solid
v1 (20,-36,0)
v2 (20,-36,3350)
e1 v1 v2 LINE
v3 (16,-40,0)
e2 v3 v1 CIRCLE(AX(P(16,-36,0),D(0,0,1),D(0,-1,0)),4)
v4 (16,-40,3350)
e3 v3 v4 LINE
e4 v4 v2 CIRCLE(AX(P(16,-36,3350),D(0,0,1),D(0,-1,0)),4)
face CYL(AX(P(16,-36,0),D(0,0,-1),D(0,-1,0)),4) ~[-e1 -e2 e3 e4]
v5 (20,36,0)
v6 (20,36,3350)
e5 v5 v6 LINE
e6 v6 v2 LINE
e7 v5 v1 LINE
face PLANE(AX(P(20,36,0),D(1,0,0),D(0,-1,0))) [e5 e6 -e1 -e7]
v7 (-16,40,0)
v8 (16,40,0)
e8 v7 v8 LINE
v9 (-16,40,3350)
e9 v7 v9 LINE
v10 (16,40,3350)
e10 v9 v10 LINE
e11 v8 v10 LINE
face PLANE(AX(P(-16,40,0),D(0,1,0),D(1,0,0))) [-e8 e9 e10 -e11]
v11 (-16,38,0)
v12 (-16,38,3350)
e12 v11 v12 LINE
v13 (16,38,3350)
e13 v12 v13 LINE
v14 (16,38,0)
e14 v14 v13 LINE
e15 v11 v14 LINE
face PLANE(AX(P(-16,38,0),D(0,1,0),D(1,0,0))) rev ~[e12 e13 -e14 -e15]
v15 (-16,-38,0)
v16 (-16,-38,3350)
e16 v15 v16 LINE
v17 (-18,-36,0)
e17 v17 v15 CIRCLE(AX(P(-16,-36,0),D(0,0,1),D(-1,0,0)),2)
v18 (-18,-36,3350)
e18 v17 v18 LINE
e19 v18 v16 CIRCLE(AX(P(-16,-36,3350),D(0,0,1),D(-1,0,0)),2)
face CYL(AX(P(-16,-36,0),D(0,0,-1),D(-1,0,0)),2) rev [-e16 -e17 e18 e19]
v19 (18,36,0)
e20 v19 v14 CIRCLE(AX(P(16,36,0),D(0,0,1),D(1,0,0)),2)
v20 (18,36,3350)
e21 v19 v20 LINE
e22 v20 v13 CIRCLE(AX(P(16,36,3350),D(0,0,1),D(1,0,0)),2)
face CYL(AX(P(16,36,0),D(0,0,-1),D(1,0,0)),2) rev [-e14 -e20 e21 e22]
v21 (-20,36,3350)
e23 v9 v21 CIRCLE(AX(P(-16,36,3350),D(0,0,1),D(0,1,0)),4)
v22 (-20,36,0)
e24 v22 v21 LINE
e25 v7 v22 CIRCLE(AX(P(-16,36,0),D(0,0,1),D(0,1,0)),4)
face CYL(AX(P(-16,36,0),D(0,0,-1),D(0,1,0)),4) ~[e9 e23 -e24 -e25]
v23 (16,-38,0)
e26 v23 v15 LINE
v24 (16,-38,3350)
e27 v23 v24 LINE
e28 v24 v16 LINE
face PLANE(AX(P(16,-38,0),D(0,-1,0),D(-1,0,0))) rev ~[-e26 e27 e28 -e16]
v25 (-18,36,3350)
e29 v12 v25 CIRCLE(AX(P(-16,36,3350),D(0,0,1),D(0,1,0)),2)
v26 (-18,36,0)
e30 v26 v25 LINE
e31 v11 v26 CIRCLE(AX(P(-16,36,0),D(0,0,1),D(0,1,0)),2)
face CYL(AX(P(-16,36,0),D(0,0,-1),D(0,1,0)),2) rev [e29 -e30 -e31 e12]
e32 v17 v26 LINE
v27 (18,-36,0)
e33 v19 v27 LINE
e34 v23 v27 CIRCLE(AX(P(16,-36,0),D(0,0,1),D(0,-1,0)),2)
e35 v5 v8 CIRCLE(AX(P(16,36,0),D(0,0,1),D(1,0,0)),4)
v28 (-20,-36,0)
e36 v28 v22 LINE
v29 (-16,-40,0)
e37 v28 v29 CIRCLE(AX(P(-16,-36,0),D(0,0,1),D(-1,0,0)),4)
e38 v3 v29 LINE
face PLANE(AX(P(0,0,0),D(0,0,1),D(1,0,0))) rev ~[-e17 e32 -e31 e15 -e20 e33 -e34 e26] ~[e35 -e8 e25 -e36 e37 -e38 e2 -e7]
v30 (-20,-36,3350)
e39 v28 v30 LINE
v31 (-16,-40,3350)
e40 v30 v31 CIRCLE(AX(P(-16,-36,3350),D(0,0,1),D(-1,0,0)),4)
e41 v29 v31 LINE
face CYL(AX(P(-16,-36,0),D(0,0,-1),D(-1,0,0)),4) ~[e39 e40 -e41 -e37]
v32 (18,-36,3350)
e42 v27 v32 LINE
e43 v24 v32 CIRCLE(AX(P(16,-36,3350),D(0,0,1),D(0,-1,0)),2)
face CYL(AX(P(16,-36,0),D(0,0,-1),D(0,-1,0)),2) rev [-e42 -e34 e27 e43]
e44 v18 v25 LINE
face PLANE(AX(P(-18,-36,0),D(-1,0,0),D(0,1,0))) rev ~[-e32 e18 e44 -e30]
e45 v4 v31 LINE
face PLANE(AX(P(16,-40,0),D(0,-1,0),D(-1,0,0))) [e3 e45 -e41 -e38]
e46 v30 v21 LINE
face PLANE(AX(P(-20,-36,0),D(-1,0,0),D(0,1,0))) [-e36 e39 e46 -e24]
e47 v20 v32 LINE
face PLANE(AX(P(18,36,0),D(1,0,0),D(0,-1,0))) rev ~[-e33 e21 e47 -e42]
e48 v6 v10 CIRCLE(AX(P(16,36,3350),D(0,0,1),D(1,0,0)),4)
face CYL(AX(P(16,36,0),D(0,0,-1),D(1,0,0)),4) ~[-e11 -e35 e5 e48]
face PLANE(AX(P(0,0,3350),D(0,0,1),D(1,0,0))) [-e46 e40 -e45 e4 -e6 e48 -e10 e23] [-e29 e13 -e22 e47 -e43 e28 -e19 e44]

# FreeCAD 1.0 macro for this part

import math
import FreeCAD as App
import Part
import Sketcher
from FreeCAD import Vector

doc = App.newDocument("Part")
params = doc.addObject("Spreadsheet::Sheet", "Params")
for row, (alias, value) in enumerate([
    ("sketch1_radius", "4 mm"),
    ("sketch1_radius2", "2 mm"),
    ("pad1_length", "3350 mm"),
], start=1):
    params.set(f"A{row}", alias)
    params.set(f"B{row}", "=" + value)
    params.setAlias(f"B{row}", alias)

body = doc.addObject("PartDesign::Body", "Body")

# Sketch on XY plane
sketch1 = body.newObject("Sketcher::SketchObject", "Sketch")
sketch1.AttachmentSupport = (doc.getObject("XY_Plane"), [""])
sketch1.MapMode = "FlatFace"
sketch1.addGeometry(Part.LineSegment(Vector(-20, 36, 0), Vector(-20, -36, 0)), False)
sketch1.addGeometry(Part.ArcOfCircle(Part.Circle(Vector(-16, -36, 0), Vector(0, 0, 1), 4), math.radians(180), math.radians(270)), False)
sketch1.addGeometry(Part.LineSegment(Vector(-16, -40, 0), Vector(16, -40, 0)), False)
sketch1.addGeometry(Part.ArcOfCircle(Part.Circle(Vector(16, -36, 0), Vector(0, 0, 1), 4), math.radians(-90), math.radians(0)), False)
sketch1.addGeometry(Part.LineSegment(Vector(20, -36, 0), Vector(20, 36, 0)), False)
sketch1.addGeometry(Part.ArcOfCircle(Part.Circle(Vector(16, 36, 0), Vector(0, 0, 1), 4), math.radians(0), math.radians(90)), False)
sketch1.addGeometry(Part.LineSegment(Vector(16, 40, 0), Vector(-16, 40, 0)), False)
sketch1.addGeometry(Part.ArcOfCircle(Part.Circle(Vector(-16, 36, 0), Vector(0, 0, 1), 4), math.radians(90), math.radians(180)), False)
sketch1.addGeometry(Part.ArcOfCircle(Part.Circle(Vector(-16, 36, 0), Vector(0, 0, 1), 2), math.radians(90), math.radians(180)), False)
sketch1.addGeometry(Part.LineSegment(Vector(-16, 38, 0), Vector(16, 38, 0)), False)
sketch1.addGeometry(Part.ArcOfCircle(Part.Circle(Vector(16, 36, 0), Vector(0, 0, 1), 2), math.radians(0), math.radians(90)), False)
sketch1.addGeometry(Part.LineSegment(Vector(18, 36, 0), Vector(18, -36, 0)), False)
sketch1.addGeometry(Part.ArcOfCircle(Part.Circle(Vector(16, -36, 0), Vector(0, 0, 1), 2), math.radians(-90), math.radians(0)), False)
sketch1.addGeometry(Part.LineSegment(Vector(16, -38, 0), Vector(-16, -38, 0)), False)
sketch1.addGeometry(Part.ArcOfCircle(Part.Circle(Vector(-16, -36, 0), Vector(0, 0, 1), 2), math.radians(180), math.radians(270)), False)
sketch1.addGeometry(Part.LineSegment(Vector(-18, -36, 0), Vector(-18, 36, 0)), False)
sketch1.addConstraint(Sketcher.Constraint("Tangent", 0, 2, 1, 1))
sketch1.addConstraint(Sketcher.Constraint("Tangent", 1, 2, 2, 1))
sketch1.addConstraint(Sketcher.Constraint("Tangent", 2, 2, 3, 1))
sketch1.addConstraint(Sketcher.Constraint("Tangent", 3, 2, 4, 1))
sketch1.addConstraint(Sketcher.Constraint("Tangent", 4, 2, 5, 1))
sketch1.addConstraint(Sketcher.Constraint("Tangent", 5, 2, 6, 1))
sketch1.addConstraint(Sketcher.Constraint("Tangent", 6, 2, 7, 1))
sketch1.addConstraint(Sketcher.Constraint("Tangent", 7, 2, 0, 1))
sketch1.addConstraint(Sketcher.Constraint("Tangent", 8, 1, 9, 1))
sketch1.addConstraint(Sketcher.Constraint("Tangent", 9, 2, 10, 2))
sketch1.addConstraint(Sketcher.Constraint("Tangent", 10, 1, 11, 1))
sketch1.addConstraint(Sketcher.Constraint("Tangent", 11, 2, 12, 2))
sketch1.addConstraint(Sketcher.Constraint("Tangent", 12, 1, 13, 1))
sketch1.addConstraint(Sketcher.Constraint("Tangent", 13, 2, 14, 2))
sketch1.addConstraint(Sketcher.Constraint("Tangent", 14, 1, 15, 1))
sketch1.addConstraint(Sketcher.Constraint("Tangent", 15, 2, 8, 2))
sketch1.addConstraint(Sketcher.Constraint("Vertical", 0))
sketch1.addConstraint(Sketcher.Constraint("Horizontal", 2))
sketch1.addConstraint(Sketcher.Constraint("Vertical", 4))
sketch1.addConstraint(Sketcher.Constraint("Horizontal", 6))
sketch1.addConstraint(Sketcher.Constraint("Horizontal", 9))
sketch1.addConstraint(Sketcher.Constraint("Vertical", 11))
sketch1.addConstraint(Sketcher.Constraint("Horizontal", 13))
sketch1.addConstraint(Sketcher.Constraint("Vertical", 15))
sketch1.addConstraint(Sketcher.Constraint("Coincident", 8, 3, 7, 3))
sketch1.addConstraint(Sketcher.Constraint("Coincident", 10, 3, 5, 3))
sketch1.addConstraint(Sketcher.Constraint("Coincident", 12, 3, 3, 3))
sketch1.addConstraint(Sketcher.Constraint("Equal", 1, 3))
sketch1.addConstraint(Sketcher.Constraint("Equal", 3, 5))
sketch1.addConstraint(Sketcher.Constraint("Equal", 5, 7))
sketch1.addConstraint(Sketcher.Constraint("Equal", 12, 14))
sketch1.addConstraint(Sketcher.Constraint("Symmetric", 1, 3, 5, 3, -1, 1))
sketch1.addConstraint(Sketcher.Constraint("Radius", 1, 4.0))
sketch1.addConstraint(Sketcher.Constraint("Radius", 8, 2.0))
sketch1.addConstraint(Sketcher.Constraint("DistanceX", 0, 2, -1, 1, 20.0))
sketch1.addConstraint(Sketcher.Constraint("DistanceY", 1, 2, -1, 1, 40.0))
sketch1.setExpression("Constraints[32]", "Params.sketch1_radius")
sketch1.setExpression("Constraints[33]", "Params.sketch1_radius2")
pad1 = body.newObject("PartDesign::Pad", "Pad")
pad1.Profile = sketch1
pad1.setExpression("Length", "Params.pad1_length")

doc.recompute()
